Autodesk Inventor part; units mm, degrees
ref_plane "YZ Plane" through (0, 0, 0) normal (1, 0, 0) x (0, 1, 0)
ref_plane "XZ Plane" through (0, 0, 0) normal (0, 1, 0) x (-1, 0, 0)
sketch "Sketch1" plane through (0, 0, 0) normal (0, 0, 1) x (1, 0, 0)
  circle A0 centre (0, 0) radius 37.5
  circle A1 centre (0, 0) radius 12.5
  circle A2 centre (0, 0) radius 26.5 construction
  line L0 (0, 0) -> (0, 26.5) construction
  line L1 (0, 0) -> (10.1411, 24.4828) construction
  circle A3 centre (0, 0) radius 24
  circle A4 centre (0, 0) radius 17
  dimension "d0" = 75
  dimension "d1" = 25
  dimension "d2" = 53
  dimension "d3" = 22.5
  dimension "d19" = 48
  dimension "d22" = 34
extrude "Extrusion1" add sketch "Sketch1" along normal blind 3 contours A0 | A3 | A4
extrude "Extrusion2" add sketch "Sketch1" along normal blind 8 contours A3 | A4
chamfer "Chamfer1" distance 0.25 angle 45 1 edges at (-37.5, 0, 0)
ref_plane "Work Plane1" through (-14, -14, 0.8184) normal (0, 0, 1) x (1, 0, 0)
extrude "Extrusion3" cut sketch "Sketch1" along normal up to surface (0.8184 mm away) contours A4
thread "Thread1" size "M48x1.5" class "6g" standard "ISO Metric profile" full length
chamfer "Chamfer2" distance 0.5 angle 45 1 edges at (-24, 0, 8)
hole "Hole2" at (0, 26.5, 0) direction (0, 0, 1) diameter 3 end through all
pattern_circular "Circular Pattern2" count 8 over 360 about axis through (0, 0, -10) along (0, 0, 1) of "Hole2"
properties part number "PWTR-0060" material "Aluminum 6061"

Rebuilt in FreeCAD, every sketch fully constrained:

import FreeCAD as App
import Part
import Sketcher


def edges_at(feature, points):
    """Names of the edges that pass closest to the given points."""
    edges = feature.Shape.Edges
    near = lambda p: min(range(len(edges)), key=lambda i: edges[i].distToShape(Part.Vertex(*p))[0])
    return sorted({f"Edge{near(p) + 1}" for p in points})

doc = App.newDocument("Part")
body = doc.addObject("PartDesign::Body", "Body")

sketch1 = body.newObject("Sketcher::SketchObject", "Sketch")
sketch1.AttachmentSupport = (doc.getObject("XY_Plane"), [""])
sketch1.MapMode = "FlatFace"
sketch1.addGeometry([
    Part.Circle(App.Vector(0, 0, 0), App.Vector(0, 0, 1), 38),
    Part.Circle(App.Vector(0, 0, 0), App.Vector(0, 0, 1), 12),
], False)
sketch1.addConstraint([
    Sketcher.Constraint("Coincident", 0, 3, -1, 1),
    Sketcher.Constraint("Coincident", 1, 3, -1, 1),
    Sketcher.Constraint("Diameter", 0, 75.0),
    Sketcher.Constraint("Diameter", 1, 25.0),
])
pad1 = body.newObject("PartDesign::Pad", "Pad")
pad1.Profile = sketch1
pad1.Length = 3

sketch2 = body.newObject("Sketcher::SketchObject", "Sketch001")
sketch2.AttachmentSupport = (doc.getObject("XY_Plane"), [""])
sketch2.MapMode = "FlatFace"
sketch2.addGeometry([
    Part.Circle(App.Vector(0, 0, 0), App.Vector(0, 0, 1), 24),
    Part.Circle(App.Vector(0, 0, 0), App.Vector(0, 0, 1), 12),
], False)
sketch2.addConstraint([
    Sketcher.Constraint("Coincident", 0, 3, -1, 1),
    Sketcher.Constraint("Coincident", 1, 3, -1, 1),
    Sketcher.Constraint("Diameter", 0, 48.0),
    Sketcher.Constraint("Diameter", 1, 25.0),
])
pad2 = body.newObject("PartDesign::Pad", "Pad001")
pad2.Profile = sketch2
pad2.Length = 8
doc.recompute()

chamfer = body.newObject("PartDesign::Chamfer", "Chamfer")
chamfer.Base = (pad2, edges_at(pad2, [(-37.5, 0, 0)]))
chamfer.Size = 0.25

sketch3 = body.newObject("Sketcher::SketchObject", "Sketch002")
sketch3.AttachmentSupport = (doc.getObject("XY_Plane"), [""])
sketch3.MapMode = "FlatFace"
sketch3.addGeometry([
    Part.Circle(App.Vector(0, 0, 0), App.Vector(0, 0, 1), 17),
    Part.Circle(App.Vector(0, 0, 0), App.Vector(0, 0, 1), 12),
], False)
sketch3.addConstraint([
    Sketcher.Constraint("Coincident", 0, 3, -1, 1),
    Sketcher.Constraint("Coincident", 1, 3, -1, 1),
    Sketcher.Constraint("Diameter", 0, 34.0),
    Sketcher.Constraint("Diameter", 1, 25.0),
])
pocket1 = body.newObject("PartDesign::Pocket", "Pocket")
pocket1.Profile = sketch3
pocket1.Length = 0.8184
pocket1.Reversed = True
doc.recompute()

chamfer2 = body.newObject("PartDesign::Chamfer", "Chamfer001")
chamfer2.Base = (pocket1, edges_at(pocket1, [(-24, 0, 8)]))
chamfer2.Size = 0.5

sketch4 = body.newObject("Sketcher::SketchObject", "Sketch003")
sketch4.AttachmentSupport = (doc.getObject("XY_Plane"), [""])
sketch4.MapMode = "FlatFace"
sketch4.addGeometry(Part.Circle(App.Vector(0, 26.5, 0), App.Vector(0, 0, 1), 1.5), False)
sketch4.addConstraint([
    Sketcher.Constraint("PointOnObject", 0, 3, -2),
    Sketcher.Constraint("Diameter", 0, 3.0),
    Sketcher.Constraint("DistanceY", -1, 1, 0, 3, 26.5),
])
doc.recompute()
hole = body.newObject("PartDesign::Hole", "Hole")
hole.Profile = sketch4
hole.ThreadType = "None"
hole.Diameter = 3
hole.DepthType = "ThroughAll"
hole.Reversed = True
doc.recompute()

polarpattern = body.newObject("PartDesign::PolarPattern", "PolarPattern")
polarpattern.Originals = [hole]
polarpattern.Axis = (doc.getObject("Z_Axis"), [""])
polarpattern.Angle = 360
polarpattern.Occurrences = 8
body.Tip = polarpattern

doc.recompute()
